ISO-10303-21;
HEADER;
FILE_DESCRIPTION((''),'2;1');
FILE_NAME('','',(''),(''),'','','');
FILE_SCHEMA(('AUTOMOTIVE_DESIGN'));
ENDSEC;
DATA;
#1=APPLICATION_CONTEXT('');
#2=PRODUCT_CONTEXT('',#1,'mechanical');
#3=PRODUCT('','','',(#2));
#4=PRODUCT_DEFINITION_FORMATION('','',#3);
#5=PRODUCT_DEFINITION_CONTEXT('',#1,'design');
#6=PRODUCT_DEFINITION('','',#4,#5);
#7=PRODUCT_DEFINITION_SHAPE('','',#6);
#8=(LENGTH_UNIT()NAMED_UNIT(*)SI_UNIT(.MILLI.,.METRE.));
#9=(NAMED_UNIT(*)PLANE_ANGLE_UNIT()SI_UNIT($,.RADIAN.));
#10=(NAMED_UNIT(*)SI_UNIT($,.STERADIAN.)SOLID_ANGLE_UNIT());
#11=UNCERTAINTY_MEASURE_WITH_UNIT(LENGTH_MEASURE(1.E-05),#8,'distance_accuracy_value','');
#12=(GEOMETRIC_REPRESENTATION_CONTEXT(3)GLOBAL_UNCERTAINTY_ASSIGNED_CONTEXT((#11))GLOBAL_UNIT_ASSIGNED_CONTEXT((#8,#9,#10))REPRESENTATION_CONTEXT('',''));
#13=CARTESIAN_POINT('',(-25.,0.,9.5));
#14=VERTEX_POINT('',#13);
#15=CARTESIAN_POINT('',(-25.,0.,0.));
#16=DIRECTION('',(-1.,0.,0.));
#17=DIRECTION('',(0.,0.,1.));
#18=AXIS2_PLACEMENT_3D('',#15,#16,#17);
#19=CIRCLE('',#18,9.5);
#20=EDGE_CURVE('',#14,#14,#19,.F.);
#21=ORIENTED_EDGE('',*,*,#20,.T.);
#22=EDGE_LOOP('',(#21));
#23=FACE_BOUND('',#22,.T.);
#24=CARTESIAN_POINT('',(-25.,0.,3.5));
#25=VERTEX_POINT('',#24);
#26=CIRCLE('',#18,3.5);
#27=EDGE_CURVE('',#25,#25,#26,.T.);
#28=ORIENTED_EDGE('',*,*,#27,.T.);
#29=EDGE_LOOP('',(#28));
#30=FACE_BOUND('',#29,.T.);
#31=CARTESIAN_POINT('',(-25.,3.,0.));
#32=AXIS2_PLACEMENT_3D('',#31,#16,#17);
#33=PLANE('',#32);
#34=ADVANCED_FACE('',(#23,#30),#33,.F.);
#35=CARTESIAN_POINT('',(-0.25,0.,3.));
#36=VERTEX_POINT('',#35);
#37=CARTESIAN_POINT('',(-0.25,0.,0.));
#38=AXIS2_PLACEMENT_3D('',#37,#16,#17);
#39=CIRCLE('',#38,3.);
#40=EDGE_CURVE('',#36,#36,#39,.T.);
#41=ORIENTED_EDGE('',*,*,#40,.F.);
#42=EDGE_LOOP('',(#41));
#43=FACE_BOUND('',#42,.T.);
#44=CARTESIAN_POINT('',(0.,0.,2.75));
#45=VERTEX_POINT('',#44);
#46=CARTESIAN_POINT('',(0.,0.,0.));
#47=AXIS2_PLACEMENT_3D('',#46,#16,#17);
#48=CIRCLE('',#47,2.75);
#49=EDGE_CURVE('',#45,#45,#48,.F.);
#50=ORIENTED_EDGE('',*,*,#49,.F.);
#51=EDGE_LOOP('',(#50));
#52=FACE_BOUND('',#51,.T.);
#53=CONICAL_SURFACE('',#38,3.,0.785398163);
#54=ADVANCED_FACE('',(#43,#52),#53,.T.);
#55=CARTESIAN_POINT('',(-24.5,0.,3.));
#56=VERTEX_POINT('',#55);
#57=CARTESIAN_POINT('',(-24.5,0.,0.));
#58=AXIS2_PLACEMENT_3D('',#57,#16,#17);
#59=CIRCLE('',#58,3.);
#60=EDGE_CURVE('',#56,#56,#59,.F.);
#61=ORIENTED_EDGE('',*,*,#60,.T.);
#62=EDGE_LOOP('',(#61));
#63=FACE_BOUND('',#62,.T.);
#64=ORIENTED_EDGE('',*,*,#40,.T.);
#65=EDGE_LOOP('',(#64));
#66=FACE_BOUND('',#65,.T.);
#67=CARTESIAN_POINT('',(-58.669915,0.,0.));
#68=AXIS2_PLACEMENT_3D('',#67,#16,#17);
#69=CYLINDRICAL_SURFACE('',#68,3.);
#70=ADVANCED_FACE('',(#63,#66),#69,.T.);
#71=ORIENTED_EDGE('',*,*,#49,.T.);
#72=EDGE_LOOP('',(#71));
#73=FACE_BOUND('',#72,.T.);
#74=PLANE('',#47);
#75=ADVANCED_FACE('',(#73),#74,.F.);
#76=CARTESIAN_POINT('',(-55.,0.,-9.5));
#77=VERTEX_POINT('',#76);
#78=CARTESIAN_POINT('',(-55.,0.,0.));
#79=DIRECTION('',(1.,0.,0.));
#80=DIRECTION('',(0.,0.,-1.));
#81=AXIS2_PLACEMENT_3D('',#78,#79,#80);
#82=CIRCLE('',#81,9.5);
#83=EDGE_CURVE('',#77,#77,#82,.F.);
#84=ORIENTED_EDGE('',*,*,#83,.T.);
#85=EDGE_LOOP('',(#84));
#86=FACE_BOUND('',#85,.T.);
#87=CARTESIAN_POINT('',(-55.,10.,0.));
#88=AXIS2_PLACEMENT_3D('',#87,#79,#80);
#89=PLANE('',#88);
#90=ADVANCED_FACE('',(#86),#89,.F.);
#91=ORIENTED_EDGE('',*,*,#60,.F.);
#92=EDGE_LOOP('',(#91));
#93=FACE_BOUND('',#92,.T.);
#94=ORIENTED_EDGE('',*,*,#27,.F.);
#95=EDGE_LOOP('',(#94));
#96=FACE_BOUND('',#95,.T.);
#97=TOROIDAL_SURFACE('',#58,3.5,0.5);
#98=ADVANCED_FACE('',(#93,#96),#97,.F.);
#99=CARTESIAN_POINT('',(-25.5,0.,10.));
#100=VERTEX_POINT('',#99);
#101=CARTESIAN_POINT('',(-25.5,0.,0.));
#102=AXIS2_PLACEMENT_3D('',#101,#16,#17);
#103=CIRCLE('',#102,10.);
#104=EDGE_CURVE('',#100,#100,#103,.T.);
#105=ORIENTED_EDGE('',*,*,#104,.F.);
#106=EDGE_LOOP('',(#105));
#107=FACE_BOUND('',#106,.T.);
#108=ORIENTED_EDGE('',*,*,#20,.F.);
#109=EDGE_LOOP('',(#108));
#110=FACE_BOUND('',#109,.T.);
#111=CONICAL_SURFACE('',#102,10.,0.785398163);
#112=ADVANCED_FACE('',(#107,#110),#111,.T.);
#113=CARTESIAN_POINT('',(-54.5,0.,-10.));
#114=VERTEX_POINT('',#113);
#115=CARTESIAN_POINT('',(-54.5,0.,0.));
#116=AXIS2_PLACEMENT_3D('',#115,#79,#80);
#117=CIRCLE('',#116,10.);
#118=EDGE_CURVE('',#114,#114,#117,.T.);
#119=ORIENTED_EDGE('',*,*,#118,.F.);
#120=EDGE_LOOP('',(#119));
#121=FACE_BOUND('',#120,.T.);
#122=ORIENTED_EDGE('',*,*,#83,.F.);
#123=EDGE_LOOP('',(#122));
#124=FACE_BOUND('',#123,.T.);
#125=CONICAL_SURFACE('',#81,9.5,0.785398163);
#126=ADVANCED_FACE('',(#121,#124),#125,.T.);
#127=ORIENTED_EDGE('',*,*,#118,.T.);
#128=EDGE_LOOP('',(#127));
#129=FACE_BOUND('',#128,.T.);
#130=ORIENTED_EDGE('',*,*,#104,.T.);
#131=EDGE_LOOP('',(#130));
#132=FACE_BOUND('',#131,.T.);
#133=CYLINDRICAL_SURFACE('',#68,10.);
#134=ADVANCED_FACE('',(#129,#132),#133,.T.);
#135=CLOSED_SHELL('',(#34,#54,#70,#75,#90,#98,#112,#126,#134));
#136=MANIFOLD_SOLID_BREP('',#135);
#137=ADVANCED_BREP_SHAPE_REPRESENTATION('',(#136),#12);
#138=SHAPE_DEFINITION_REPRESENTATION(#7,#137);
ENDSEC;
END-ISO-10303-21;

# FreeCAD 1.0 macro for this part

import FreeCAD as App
import Part
import Sketcher


def edges_at(feature, points):
    """Names of the edges that pass closest to the given points."""
    edges = feature.Shape.Edges
    near = lambda p: min(range(len(edges)), key=lambda i: edges[i].distToShape(Part.Vertex(*p))[0])
    return sorted({f"Edge{near(p) + 1}" for p in points})


def add_polygon(sketch, points):
    """Adds a closed chain of lines whose ends are joined by coincident constraints."""
    first, n = sketch.GeometryCount, len(points)
    for a, b in zip(points, points[1:] + points[:1]):
        sketch.addGeometry(Part.LineSegment(App.Vector(*a, 0), App.Vector(*b, 0)), False)
    for i in range(n):
        sketch.addConstraint(Sketcher.Constraint("Coincident", first + i, 2, first + (i + 1) % n, 1))

doc = App.newDocument("Part")
body = doc.addObject("PartDesign::Body", "Body")

# Sketch on XY plane
sketch1 = body.newObject("Sketcher::SketchObject", "Sketch")
sketch1.AttachmentSupport = (doc.getObject("XY_Plane"), [""])
sketch1.MapMode = "FlatFace"
add_polygon(sketch1, [(0, 0), (0, 3), (-25, 3), (-25, 10), (-55, 10), (-55, 0)])  # lines 0-5
sketch1.addConstraint([
    Sketcher.Constraint("Vertical", 0),
    Sketcher.Constraint("Horizontal", 1),
    Sketcher.Constraint("Vertical", 2),
    Sketcher.Constraint("Horizontal", 3),
    Sketcher.Constraint("Vertical", 4),
    Sketcher.Constraint("Horizontal", 5),
    Sketcher.Constraint("Coincident", 5, 2, -1, 1),
    Sketcher.Constraint("DistanceX", 1, 2, 1, 1, 25.0),
    Sketcher.Constraint("DistanceX", 3, 2, 3, 1, 30.0),
    Sketcher.Constraint("DistanceY", 0, 1, 0, 2, 3.0),
    Sketcher.Constraint("DistanceY", 2, 1, 2, 2, 7.0),
])
revolution = body.newObject("PartDesign::Revolution", "Revolution")
revolution.Profile = sketch1
revolution.ReferenceAxis = (sketch1, ["H_Axis"])
revolution.Angle = 360
doc.recompute()

chamfer = body.newObject("PartDesign::Chamfer", "Chamfer")
chamfer.Base = (revolution, edges_at(revolution, [(0, 0, -3)]))
chamfer.Size = 0.25
doc.recompute()

chamfer2 = body.newObject("PartDesign::Chamfer", "Chamfer001")
chamfer2.Base = (chamfer, edges_at(chamfer, [(-55, 0, -10), (-25, 0, -10)]))
chamfer2.Size = 0.5
doc.recompute()

fillet = body.newObject("PartDesign::Fillet", "Fillet")
fillet.Base = (chamfer2, edges_at(chamfer2, [(-25, 0, -3)]))
fillet.Radius = 0.5

doc.recompute()
